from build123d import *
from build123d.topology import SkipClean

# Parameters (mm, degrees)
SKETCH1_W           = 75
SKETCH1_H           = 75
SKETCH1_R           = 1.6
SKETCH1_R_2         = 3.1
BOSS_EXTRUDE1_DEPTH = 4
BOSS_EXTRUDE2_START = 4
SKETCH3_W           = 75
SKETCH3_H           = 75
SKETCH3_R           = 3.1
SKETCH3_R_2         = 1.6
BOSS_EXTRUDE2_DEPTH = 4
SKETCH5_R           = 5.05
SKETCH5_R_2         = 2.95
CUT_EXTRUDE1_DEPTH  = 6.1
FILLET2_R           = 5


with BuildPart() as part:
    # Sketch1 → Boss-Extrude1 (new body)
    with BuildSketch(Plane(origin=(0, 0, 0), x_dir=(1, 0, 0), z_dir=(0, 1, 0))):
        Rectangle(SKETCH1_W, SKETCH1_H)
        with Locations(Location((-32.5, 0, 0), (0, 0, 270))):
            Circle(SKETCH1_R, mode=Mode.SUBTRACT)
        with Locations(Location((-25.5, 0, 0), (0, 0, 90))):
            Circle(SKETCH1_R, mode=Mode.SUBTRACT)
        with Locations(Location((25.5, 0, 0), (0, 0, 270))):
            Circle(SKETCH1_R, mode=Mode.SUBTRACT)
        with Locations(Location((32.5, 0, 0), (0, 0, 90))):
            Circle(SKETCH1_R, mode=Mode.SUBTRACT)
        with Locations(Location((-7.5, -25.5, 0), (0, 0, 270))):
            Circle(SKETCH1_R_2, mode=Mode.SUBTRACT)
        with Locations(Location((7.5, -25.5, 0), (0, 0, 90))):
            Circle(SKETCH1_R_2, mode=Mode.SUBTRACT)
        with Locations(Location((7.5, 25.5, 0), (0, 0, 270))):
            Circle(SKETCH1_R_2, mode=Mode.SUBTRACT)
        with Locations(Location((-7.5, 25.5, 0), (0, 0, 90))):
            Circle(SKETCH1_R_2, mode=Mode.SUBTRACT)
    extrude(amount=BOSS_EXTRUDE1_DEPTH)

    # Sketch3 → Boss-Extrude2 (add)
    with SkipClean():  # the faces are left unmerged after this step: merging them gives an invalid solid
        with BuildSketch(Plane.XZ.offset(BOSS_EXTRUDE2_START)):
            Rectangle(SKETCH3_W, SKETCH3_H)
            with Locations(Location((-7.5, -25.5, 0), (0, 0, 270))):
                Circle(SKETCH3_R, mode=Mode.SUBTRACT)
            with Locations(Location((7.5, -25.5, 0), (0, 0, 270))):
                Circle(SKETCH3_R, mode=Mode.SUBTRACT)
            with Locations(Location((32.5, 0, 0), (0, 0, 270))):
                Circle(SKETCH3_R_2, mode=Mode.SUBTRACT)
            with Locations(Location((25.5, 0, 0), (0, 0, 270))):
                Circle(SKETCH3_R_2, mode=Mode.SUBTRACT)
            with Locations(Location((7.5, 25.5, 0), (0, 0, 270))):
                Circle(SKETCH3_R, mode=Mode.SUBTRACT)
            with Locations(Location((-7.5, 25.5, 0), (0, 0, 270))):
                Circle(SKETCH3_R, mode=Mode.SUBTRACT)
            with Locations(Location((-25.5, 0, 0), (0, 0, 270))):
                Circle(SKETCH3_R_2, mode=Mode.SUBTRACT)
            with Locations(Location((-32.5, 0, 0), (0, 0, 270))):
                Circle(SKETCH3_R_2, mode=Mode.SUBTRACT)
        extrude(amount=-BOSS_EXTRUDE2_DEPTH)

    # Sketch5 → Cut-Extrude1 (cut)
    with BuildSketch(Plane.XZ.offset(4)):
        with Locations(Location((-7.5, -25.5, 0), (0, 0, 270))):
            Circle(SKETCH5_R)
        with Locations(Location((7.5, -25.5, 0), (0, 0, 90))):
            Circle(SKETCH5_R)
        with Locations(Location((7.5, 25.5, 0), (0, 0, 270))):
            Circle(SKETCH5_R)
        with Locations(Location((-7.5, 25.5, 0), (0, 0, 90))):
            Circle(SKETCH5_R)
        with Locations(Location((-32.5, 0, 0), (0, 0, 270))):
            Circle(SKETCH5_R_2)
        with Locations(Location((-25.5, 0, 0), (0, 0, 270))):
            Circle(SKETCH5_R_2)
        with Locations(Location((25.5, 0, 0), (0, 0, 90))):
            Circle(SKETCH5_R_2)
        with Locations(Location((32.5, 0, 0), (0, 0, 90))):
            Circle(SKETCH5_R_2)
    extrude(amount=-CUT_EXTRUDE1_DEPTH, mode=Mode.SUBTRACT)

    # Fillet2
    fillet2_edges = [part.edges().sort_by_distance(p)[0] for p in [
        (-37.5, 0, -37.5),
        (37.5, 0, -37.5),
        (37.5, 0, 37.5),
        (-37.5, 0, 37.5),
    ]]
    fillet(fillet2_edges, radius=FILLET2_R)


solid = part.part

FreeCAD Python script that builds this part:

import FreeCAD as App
import Part
import Sketcher
from FreeCAD import Vector


def edges_at(feature, points):
    """Names of the edges that pass closest to the given points."""
    edges = feature.Shape.Edges
    near = lambda p: min(range(len(edges)), key=lambda i: edges[i].distToShape(Part.Vertex(*p))[0])
    return sorted({f"Edge{near(p) + 1}" for p in points})


def add_polygon(sketch, points):
    """Adds a closed chain of lines whose ends are joined by coincident constraints."""
    first, n = sketch.GeometryCount, len(points)
    for a, b in zip(points, points[1:] + points[:1]):
        sketch.addGeometry(Part.LineSegment(App.Vector(*a, 0), App.Vector(*b, 0)), False)
    for i in range(n):
        sketch.addConstraint(Sketcher.Constraint("Coincident", first + i, 2, first + (i + 1) % n, 1))

doc = App.newDocument("Part")
body = doc.addObject("PartDesign::Body", "Body")

# Sketch on XZ plane
sketch1 = body.newObject("Sketcher::SketchObject", "Sketch")
sketch1.AttachmentSupport = (doc.getObject("XZ_Plane"), [""])
sketch1.MapMode = "FlatFace"
add_polygon(sketch1, [(-37.5, -37.5), (-37.5, 37.5), (37.5, 37.5), (37.5, -37.5)])  # lines 0-3
sketch1.addGeometry(Part.Circle(Vector(-7.5, 25.5, 0), Vector(0, 0, 1), 3.1), False)  # 4
sketch1.addGeometry(Part.Circle(Vector(-32.5, 0, 0), Vector(0, 0, 1), 1.6), False)  # 5
sketch1.addGeometry(Part.Circle(Vector(-25.5, 0, 0), Vector(0, 0, 1), 1.6), False)  # 6
sketch1.addGeometry(Part.Circle(Vector(7.5, 25.5, 0), Vector(0, 0, 1), 3.1), False)  # 7
sketch1.addGeometry(Part.Circle(Vector(25.5, 0, 0), Vector(0, 0, 1), 1.6), False)  # 8
sketch1.addGeometry(Part.Circle(Vector(32.5, 0, 0), Vector(0, 0, 1), 1.6), False)  # 9
sketch1.addGeometry(Part.Circle(Vector(-7.5, -25.5, 0), Vector(0, 0, 1), 3.1), False)  # 10
sketch1.addGeometry(Part.Circle(Vector(7.5, -25.5, 0), Vector(0, 0, 1), 3.1), False)  # 11
sketch1.addConstraint([
    Sketcher.Constraint("Vertical", 0),
    Sketcher.Constraint("Horizontal", 1),
    Sketcher.Constraint("Vertical", 2),
    Sketcher.Constraint("Horizontal", 3),
    Sketcher.Constraint("Equal", 5, 6),
    Sketcher.Constraint("Equal", 4, 7),
    Sketcher.Constraint("Equal", 6, 8),
    Sketcher.Constraint("Equal", 8, 9),
    Sketcher.Constraint("Equal", 7, 10),
    Sketcher.Constraint("Equal", 10, 11),
    Sketcher.Constraint("Symmetric", 6, 3, 8, 3, -1, 1),
    Sketcher.Constraint("Symmetric", 5, 3, 9, 3, -1, 1),
    Sketcher.Constraint("Symmetric", 7, 3, 10, 3, -1, 1),
    Sketcher.Constraint("Symmetric", 4, 3, 11, 3, -1, 1),
    Sketcher.Constraint("Symmetric", 0, 2, 2, 2, -1, 1),
    Sketcher.Constraint("Symmetric", 4, 3, 7, 3, -2),
    Sketcher.Constraint("PointOnObject", 5, 3, -1),
    Sketcher.Constraint("PointOnObject", 6, 3, -1),
    Sketcher.Constraint("Equal", 3, 0),
    Sketcher.Constraint("Diameter", 4, 6.2),
    Sketcher.Constraint("Diameter", 5, 3.2),
    Sketcher.Constraint("DistanceX", 1, 1, 1, 2, 75.0),
    Sketcher.Constraint("DistanceX", 5, 3, 4, 3, 25.0),
    Sketcher.Constraint("DistanceX", 5, 3, 6, 3, 7.0),
    Sketcher.Constraint("DistanceX", 4, 3, 7, 3, 15.0),
    Sketcher.Constraint("DistanceY", 10, 3, 4, 3, 51.0),
])
pad1 = body.newObject("PartDesign::Pad", "Pad")
pad1.Profile = sketch1
pad1.Length = 4
pad1.Reversed = True

# Sketch on XZ plane
sketch2 = body.newObject("Sketcher::SketchObject", "Sketch001")
sketch2.AttachmentSupport = (doc.getObject("XZ_Plane"), [""])
sketch2.MapMode = "FlatFace"
sketch2.AttachmentOffset = App.Placement(Vector(0, 0, 4), App.Rotation())
add_polygon(sketch2, [(-37.5, 37.5), (-37.5, -37.5), (37.5, -37.5), (37.5, 37.5)])  # lines 0-3
sketch2.addGeometry(Part.Circle(Vector(-7.5, -25.5, 0), Vector(0, 0, 1), 3.1), False)  # 4
sketch2.addGeometry(Part.Circle(Vector(-32.5, 0, 0), Vector(0, 0, 1), 1.6), False)  # 5
sketch2.addGeometry(Part.Circle(Vector(-25.5, 0, 0), Vector(0, 0, 1), 1.6), False)  # 6
sketch2.addGeometry(Part.Circle(Vector(7.5, -25.5, 0), Vector(0, 0, 1), 3.1), False)  # 7
sketch2.addGeometry(Part.Circle(Vector(25.5, 0, 0), Vector(0, 0, 1), 1.6), False)  # 8
sketch2.addGeometry(Part.Circle(Vector(32.5, 0, 0), Vector(0, 0, 1), 1.6), False)  # 9
sketch2.addGeometry(Part.Circle(Vector(-7.5, 25.5, 0), Vector(0, 0, 1), 3.1), False)  # 10
sketch2.addGeometry(Part.Circle(Vector(7.5, 25.5, 0), Vector(0, 0, 1), 3.1), False)  # 11
sketch2.addConstraint([
    Sketcher.Constraint("Vertical", 0),
    Sketcher.Constraint("Horizontal", 1),
    Sketcher.Constraint("Vertical", 2),
    Sketcher.Constraint("Horizontal", 3),
    Sketcher.Constraint("Equal", 5, 6),
    Sketcher.Constraint("Equal", 4, 7),
    Sketcher.Constraint("Equal", 6, 8),
    Sketcher.Constraint("Equal", 8, 9),
    Sketcher.Constraint("Equal", 7, 10),
    Sketcher.Constraint("Equal", 10, 11),
    Sketcher.Constraint("Symmetric", 6, 3, 8, 3, -1, 1),
    Sketcher.Constraint("Symmetric", 5, 3, 9, 3, -1, 1),
    Sketcher.Constraint("Symmetric", 7, 3, 10, 3, -1, 1),
    Sketcher.Constraint("Symmetric", 4, 3, 11, 3, -1, 1),
    Sketcher.Constraint("Symmetric", 0, 2, 2, 2, -1, 1),
    Sketcher.Constraint("Symmetric", 4, 3, 7, 3, -2),
    Sketcher.Constraint("PointOnObject", 5, 3, -1),
    Sketcher.Constraint("PointOnObject", 6, 3, -1),
    Sketcher.Constraint("Equal", 3, 0),
    Sketcher.Constraint("Diameter", 4, 6.2),
    Sketcher.Constraint("Diameter", 5, 3.2),
    Sketcher.Constraint("DistanceX", 1, 1, 1, 2, 75.0),
    Sketcher.Constraint("DistanceX", 5, 3, 4, 3, 25.0),
    Sketcher.Constraint("DistanceX", 5, 3, 6, 3, 7.0),
    Sketcher.Constraint("DistanceX", 4, 3, 7, 3, 15.0),
    Sketcher.Constraint("DistanceY", 4, 3, 10, 3, 51.0),
])
pad2 = body.newObject("PartDesign::Pad", "Pad001")
pad2.Profile = sketch2
pad2.Length = 4
pad2.Reversed = True

# Sketch on XZ plane
sketch3 = body.newObject("Sketcher::SketchObject", "Sketch002")
sketch3.AttachmentSupport = (doc.getObject("XZ_Plane"), [""])
sketch3.MapMode = "FlatFace"
sketch3.AttachmentOffset = App.Placement(Vector(0, 0, 4), App.Rotation())
sketch3.addGeometry([
    Part.Circle(Vector(-7.5, -25.5, 0), Vector(0, 0, 1), 5.05),  # 0
    Part.Circle(Vector(7.5, -25.5, 0), Vector(0, 0, 1), 5.05),  # 1
    Part.Circle(Vector(7.5, 25.5, 0), Vector(0, 0, 1), 5.05),  # 2
    Part.Circle(Vector(-7.5, 25.5, 0), Vector(0, 0, 1), 5.05),  # 3
    Part.Circle(Vector(-32.5, 0, 0), Vector(0, 0, 1), 2.95),  # 4
    Part.Circle(Vector(-25.5, 0, 0), Vector(0, 0, 1), 2.95),  # 5
    Part.Circle(Vector(25.5, 0, 0), Vector(0, 0, 1), 2.95),  # 6
    Part.Circle(Vector(32.5, 0, 0), Vector(0, 0, 1), 2.95),  # 7
], False)
sketch3.addConstraint([
    Sketcher.Constraint("Equal", 0, 1),
    Sketcher.Constraint("Equal", 1, 2),
    Sketcher.Constraint("Equal", 2, 3),
    Sketcher.Constraint("Equal", 4, 5),
    Sketcher.Constraint("Equal", 5, 6),
    Sketcher.Constraint("Equal", 6, 7),
    Sketcher.Constraint("Symmetric", 0, 3, 2, 3, -1, 1),
    Sketcher.Constraint("Symmetric", 1, 3, 3, 3, -1, 1),
    Sketcher.Constraint("Symmetric", 5, 3, 6, 3, -1, 1),
    Sketcher.Constraint("Symmetric", 4, 3, 7, 3, -1, 1),
    Sketcher.Constraint("Symmetric", 0, 3, 1, 3, -2),
    Sketcher.Constraint("PointOnObject", 4, 3, -1),
    Sketcher.Constraint("PointOnObject", 5, 3, -1),
    Sketcher.Constraint("Diameter", 0, 10.1),
    Sketcher.Constraint("Diameter", 4, 5.9),
    Sketcher.Constraint("DistanceX", 0, 3, 1, 3, 15.0),
    Sketcher.Constraint("DistanceY", 1, 3, 2, 3, 51.0),
    Sketcher.Constraint("DistanceX", 4, 3, 0, 3, 25.0),
    Sketcher.Constraint("DistanceX", 4, 3, 5, 3, 7.0),
])
pocket1 = body.newObject("PartDesign::Pocket", "Pocket")
pocket1.Profile = sketch3
pocket1.Length = 6.1
doc.recompute()

fillet = body.newObject("PartDesign::Fillet", "Fillet")
fillet.Base = (pocket1, edges_at(pocket1, [
    (-37.5, 0, -37.5),
    (37.5, 0, -37.5),
    (37.5, 0, 37.5),
    (-37.5, 0, 37.5),
]))
fillet.Radius = 5

doc.recompute()
